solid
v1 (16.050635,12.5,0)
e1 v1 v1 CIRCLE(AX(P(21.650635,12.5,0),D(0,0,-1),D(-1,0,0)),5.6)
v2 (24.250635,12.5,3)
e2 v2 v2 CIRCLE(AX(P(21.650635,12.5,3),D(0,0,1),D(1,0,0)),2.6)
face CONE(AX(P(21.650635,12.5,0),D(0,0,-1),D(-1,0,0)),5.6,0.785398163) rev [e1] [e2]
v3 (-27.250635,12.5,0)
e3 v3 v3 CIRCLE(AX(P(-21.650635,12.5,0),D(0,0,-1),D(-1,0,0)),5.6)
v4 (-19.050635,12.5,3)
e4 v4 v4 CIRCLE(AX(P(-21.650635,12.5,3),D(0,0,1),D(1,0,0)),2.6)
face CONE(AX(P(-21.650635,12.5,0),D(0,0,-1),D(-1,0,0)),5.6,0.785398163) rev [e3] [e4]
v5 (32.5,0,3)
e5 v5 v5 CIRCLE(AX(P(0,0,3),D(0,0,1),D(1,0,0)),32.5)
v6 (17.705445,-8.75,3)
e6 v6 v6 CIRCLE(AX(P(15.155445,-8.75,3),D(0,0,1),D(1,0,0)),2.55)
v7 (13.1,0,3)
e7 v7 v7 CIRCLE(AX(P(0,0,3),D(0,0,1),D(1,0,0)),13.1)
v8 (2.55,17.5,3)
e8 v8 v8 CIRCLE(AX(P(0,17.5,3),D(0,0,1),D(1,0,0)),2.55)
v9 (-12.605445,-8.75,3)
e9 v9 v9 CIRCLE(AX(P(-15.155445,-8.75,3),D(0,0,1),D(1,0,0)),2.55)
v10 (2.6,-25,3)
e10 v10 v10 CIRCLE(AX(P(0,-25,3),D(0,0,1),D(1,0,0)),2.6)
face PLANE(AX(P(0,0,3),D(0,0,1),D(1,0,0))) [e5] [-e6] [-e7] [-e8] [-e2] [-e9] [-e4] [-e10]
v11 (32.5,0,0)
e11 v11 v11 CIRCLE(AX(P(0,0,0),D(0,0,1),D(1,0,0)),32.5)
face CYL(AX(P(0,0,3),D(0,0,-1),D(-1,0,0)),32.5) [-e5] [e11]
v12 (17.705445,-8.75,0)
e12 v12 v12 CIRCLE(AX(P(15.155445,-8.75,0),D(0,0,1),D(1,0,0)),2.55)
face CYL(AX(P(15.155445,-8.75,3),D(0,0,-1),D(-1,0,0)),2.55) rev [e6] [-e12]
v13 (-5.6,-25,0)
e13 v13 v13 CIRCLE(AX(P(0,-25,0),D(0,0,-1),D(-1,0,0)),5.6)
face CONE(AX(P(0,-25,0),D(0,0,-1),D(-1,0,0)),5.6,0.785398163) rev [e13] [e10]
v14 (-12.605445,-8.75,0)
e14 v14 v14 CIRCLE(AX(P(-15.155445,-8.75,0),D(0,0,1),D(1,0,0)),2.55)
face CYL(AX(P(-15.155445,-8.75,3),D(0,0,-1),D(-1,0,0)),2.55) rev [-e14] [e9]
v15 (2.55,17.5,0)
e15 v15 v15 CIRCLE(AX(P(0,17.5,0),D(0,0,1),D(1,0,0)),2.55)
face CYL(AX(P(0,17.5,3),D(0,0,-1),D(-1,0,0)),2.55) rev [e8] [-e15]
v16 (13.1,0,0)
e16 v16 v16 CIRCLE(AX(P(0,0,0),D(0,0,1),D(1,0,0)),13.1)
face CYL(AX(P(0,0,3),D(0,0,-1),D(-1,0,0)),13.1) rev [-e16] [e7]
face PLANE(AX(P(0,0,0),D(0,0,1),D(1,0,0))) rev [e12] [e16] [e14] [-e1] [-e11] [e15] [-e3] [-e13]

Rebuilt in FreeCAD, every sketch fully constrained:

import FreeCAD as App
import Part
import Sketcher
from FreeCAD import Vector
Q = App.Units.Quantity

doc = App.newDocument("Part")
body = doc.addObject("PartDesign::Body", "Body")

# Sketch on XY plane
sketch1 = body.newObject("Sketcher::SketchObject", "Sketch")
sketch1.AttachmentSupport = (doc.getObject("XY_Plane"), [""])
sketch1.MapMode = "FlatFace"
sketch1.addGeometry([
    Part.Circle(Vector(0, 0, 0), Vector(0, 0, 1), 32.5),  # 0
    Part.Circle(Vector(-15.155445, -8.75, 0), Vector(0, 0, 1), 2.55),  # 1
    Part.Circle(Vector(0, -25, 0), Vector(0, 0, 1), 2.55),  # 2
    Part.Circle(Vector(15.155445, -8.75, 0), Vector(0, 0, 1), 2.55),  # 3
    Part.Circle(Vector(0, 0, 0), Vector(0, 0, 1), 13.1),  # 4
    Part.Circle(Vector(-21.650635, 12.5, 0), Vector(0, 0, 1), 2.55),  # 5
    Part.Circle(Vector(0, 17.5, 0), Vector(0, 0, 1), 2.55),  # 6
    Part.Circle(Vector(21.650635, 12.5, 0), Vector(0, 0, 1), 2.55),  # 7
], False)
sketch1.addConstraint([
    Sketcher.Constraint("Coincident", 0, 3, -1, 1),
    Sketcher.Constraint("Coincident", 4, 3, -1, 1),
    Sketcher.Constraint("Equal", 1, 2),
    Sketcher.Constraint("Equal", 2, 3),
    Sketcher.Constraint("Equal", 3, 5),
    Sketcher.Constraint("Equal", 5, 6),
    Sketcher.Constraint("Equal", 6, 7),
    Sketcher.Constraint("Symmetric", 1, 3, 3, 3, -2),
    Sketcher.Constraint("Symmetric", 5, 3, 7, 3, -2),
    Sketcher.Constraint("PointOnObject", 2, 3, -2),
    Sketcher.Constraint("PointOnObject", 6, 3, -2),
    Sketcher.Constraint("Diameter", 0, Q("65 mm")),
    Sketcher.Constraint("Diameter", 1, Q("5.1 mm")),
    Sketcher.Constraint("Diameter", 4, Q("26.2 mm")),
    Sketcher.Constraint("DistanceY", 2, 3, -1, 1, Q("25 mm")),
    Sketcher.Constraint("DistanceY", 5, 3, 6, 3, Q("5 mm")),
    Sketcher.Constraint("DistanceY", -1, 1, 5, 3, Q("12.5 mm")),
    Sketcher.Constraint("DistanceY", 1, 3, -1, 1, Q("8.75 mm")),
    Sketcher.Constraint("DistanceX", 1, 3, 3, 3, Q("30.310889 mm")),
    Sketcher.Constraint("DistanceX", 5, 3, 1, 3, Q("6.495191 mm")),
])
pad1 = body.newObject("PartDesign::Pad", "Pad")
pad1.Profile = sketch1
pad1.Length = 3

# Sketch on YZ plane
sketch2 = body.newObject("Sketcher::SketchObject", "Sketch001")
sketch2.AttachmentSupport = (doc.getObject("YZ_Plane"), [""])
sketch2.MapMode = "FlatFace"
sketch2.AttachmentOffset = App.Placement(Vector(0, 0, 21.650635), App.Rotation())
sketch2.addGeometry([
    Part.LineSegment(Vector(12.5, 3, 0), Vector(12.5, 0, 0)),  # 0
    Part.LineSegment(Vector(12.5, 0, 0), Vector(18.1, 0, 0)),  # 1
    Part.LineSegment(Vector(18.1, 0, 0), Vector(15, 3.1, 0)),  # 2
    Part.LineSegment(Vector(15, 3.1, 0), Vector(15, 3, 0)),  # 3
    Part.LineSegment(Vector(15, 3, 0), Vector(12.5, 3, 0)),  # 4
], False)
sketch2.addGeometry(Part.LineSegment(Vector(12.5, 0, 0), Vector(12.5, 3.1, 0)), True)  # axis
sketch2.addConstraint([
    Sketcher.Constraint("Coincident", 0, 2, 1, 1),
    Sketcher.Constraint("Coincident", 1, 2, 2, 1),
    Sketcher.Constraint("Coincident", 2, 2, 3, 1),
    Sketcher.Constraint("Coincident", 3, 2, 4, 1),
    Sketcher.Constraint("Coincident", 4, 2, 0, 1),
    Sketcher.Constraint("Vertical", 0),
    Sketcher.Constraint("Horizontal", 1),
    Sketcher.Constraint("Vertical", 3),
    Sketcher.Constraint("Horizontal", 4),
    Sketcher.Constraint("Vertical", 5),
    Sketcher.Constraint("Coincident", 5, 1, 0, 2),
    Sketcher.Constraint("PointOnObject", 0, 2, -1),
    Sketcher.Constraint("Horizontal", 2, 2, 5, 2),
    Sketcher.Constraint("DistanceY", 0, 2, 0, 1, Q("3 mm")),
    Sketcher.Constraint("Angle", 2, Q("135 deg")),
    Sketcher.Constraint("DistanceX", 1, 1, 1, 2, Q("5.6 mm")),
    Sketcher.Constraint("DistanceX", 4, 2, 4, 1, Q("2.5 mm")),
    Sketcher.Constraint("DistanceX", -1, 1, 2, 2, Q("15 mm")),
])
groove = body.newObject("PartDesign::Groove", "Groove")
groove.Profile = sketch2
groove.ReferenceAxis = (sketch2, ["Axis0"])
groove.Angle = 360
doc.recompute()

linearpattern = body.newObject("PartDesign::LinearPattern", "LinearPattern")
linearpattern.Originals = [groove]
linearpattern.Direction = (doc.getObject("X_Axis"), [""])
linearpattern.Mode = "offset"
linearpattern.Offset = 43.30127
linearpattern.Occurrences = 2
linearpattern.Reversed = True
body.Tip = linearpattern
doc.recompute()

datumline = body.newObject("PartDesign::Line", "DatumLine")
datumline.Placement = App.Placement(Vector(0, 0, 0), App.Rotation(Vector(0, 0, 1), Vector(-0.5, -0.866025404, 0)))
linearpattern2 = body.newObject("PartDesign::LinearPattern", "LinearPattern001")
linearpattern2.Originals = [groove]
linearpattern2.Direction = (datumline, [""])
linearpattern2.Mode = "offset"
linearpattern2.Offset = 43.30127
linearpattern2.Occurrences = 2
body.Tip = linearpattern2

doc.recompute()
